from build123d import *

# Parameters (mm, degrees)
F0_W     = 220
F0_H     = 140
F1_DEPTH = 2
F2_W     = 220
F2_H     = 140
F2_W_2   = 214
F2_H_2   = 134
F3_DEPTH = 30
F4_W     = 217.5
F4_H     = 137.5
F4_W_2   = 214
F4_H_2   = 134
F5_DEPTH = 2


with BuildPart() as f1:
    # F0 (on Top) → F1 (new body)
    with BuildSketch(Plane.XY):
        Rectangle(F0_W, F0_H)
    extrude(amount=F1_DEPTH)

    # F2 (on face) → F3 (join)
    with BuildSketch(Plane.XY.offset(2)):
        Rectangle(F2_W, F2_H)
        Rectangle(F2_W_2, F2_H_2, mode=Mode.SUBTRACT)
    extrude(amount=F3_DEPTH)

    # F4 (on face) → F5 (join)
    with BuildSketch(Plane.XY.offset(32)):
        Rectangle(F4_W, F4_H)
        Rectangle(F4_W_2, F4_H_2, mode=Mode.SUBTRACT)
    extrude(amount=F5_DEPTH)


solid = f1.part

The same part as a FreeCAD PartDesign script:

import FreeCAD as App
import Part
import Sketcher

V = App.Vector

doc = App.newDocument("Part")
body = doc.addObject("PartDesign::Body", "Body")

# Sketch on XY plane
sketch1 = body.newObject("Sketcher::SketchObject", "Sketch")
sketch1.AttachmentSupport = (doc.getObject("XY_Plane"), [""])
sketch1.MapMode = "FlatFace"
sketch1.addGeometry(Part.LineSegment(V(-110, 70, 0), V(-110, -70, 0)), False)
sketch1.addGeometry(Part.LineSegment(V(-110, -70, 0), V(110, -70, 0)), False)
sketch1.addGeometry(Part.LineSegment(V(110, -70, 0), V(110, 70, 0)), False)
sketch1.addGeometry(Part.LineSegment(V(110, 70, 0), V(-110, 70, 0)), False)
sketch1.addConstraint(Sketcher.Constraint("Coincident", 0, 2, 1, 1))
sketch1.addConstraint(Sketcher.Constraint("Coincident", 1, 2, 2, 1))
sketch1.addConstraint(Sketcher.Constraint("Coincident", 2, 2, 3, 1))
sketch1.addConstraint(Sketcher.Constraint("Coincident", 3, 2, 0, 1))
sketch1.addConstraint(Sketcher.Constraint("Vertical", 0))
sketch1.addConstraint(Sketcher.Constraint("Horizontal", 1))
sketch1.addConstraint(Sketcher.Constraint("Vertical", 2))
sketch1.addConstraint(Sketcher.Constraint("Horizontal", 3))
sketch1.addConstraint(Sketcher.Constraint("Symmetric", 0, 2, 2, 2, -1, 1))
sketch1.addConstraint(Sketcher.Constraint("DistanceX", 1, 1, 1, 2, 220.0))
sketch1.addConstraint(Sketcher.Constraint("DistanceY", 0, 2, 0, 1, 140.0))
pad1 = body.newObject("PartDesign::Pad", "Pad")
pad1.Profile = sketch1
pad1.Length = 2

# Sketch on XY plane
sketch2 = body.newObject("Sketcher::SketchObject", "Sketch001")
sketch2.AttachmentSupport = (doc.getObject("XY_Plane"), [""])
sketch2.MapMode = "FlatFace"
sketch2.AttachmentOffset = App.Placement(V(0, 0, 2), App.Rotation())
sketch2.addGeometry(Part.LineSegment(V(-110, 70, 0), V(-110, -70, 0)), False)
sketch2.addGeometry(Part.LineSegment(V(-110, -70, 0), V(110, -70, 0)), False)
sketch2.addGeometry(Part.LineSegment(V(110, -70, 0), V(110, 70, 0)), False)
sketch2.addGeometry(Part.LineSegment(V(110, 70, 0), V(-110, 70, 0)), False)
sketch2.addGeometry(Part.LineSegment(V(107, -67, 0), V(-107, -67, 0)), False)
sketch2.addGeometry(Part.LineSegment(V(-107, -67, 0), V(-107, 67, 0)), False)
sketch2.addGeometry(Part.LineSegment(V(-107, 67, 0), V(107, 67, 0)), False)
sketch2.addGeometry(Part.LineSegment(V(107, 67, 0), V(107, -67, 0)), False)
sketch2.addConstraint(Sketcher.Constraint("Coincident", 0, 2, 1, 1))
sketch2.addConstraint(Sketcher.Constraint("Coincident", 1, 2, 2, 1))
sketch2.addConstraint(Sketcher.Constraint("Coincident", 2, 2, 3, 1))
sketch2.addConstraint(Sketcher.Constraint("Coincident", 3, 2, 0, 1))
sketch2.addConstraint(Sketcher.Constraint("Coincident", 4, 2, 5, 1))
sketch2.addConstraint(Sketcher.Constraint("Coincident", 5, 2, 6, 1))
sketch2.addConstraint(Sketcher.Constraint("Coincident", 6, 2, 7, 1))
sketch2.addConstraint(Sketcher.Constraint("Coincident", 7, 2, 4, 1))
sketch2.addConstraint(Sketcher.Constraint("Vertical", 0))
sketch2.addConstraint(Sketcher.Constraint("Horizontal", 1))
sketch2.addConstraint(Sketcher.Constraint("Vertical", 2))
sketch2.addConstraint(Sketcher.Constraint("Horizontal", 3))
sketch2.addConstraint(Sketcher.Constraint("Horizontal", 4))
sketch2.addConstraint(Sketcher.Constraint("Vertical", 5))
sketch2.addConstraint(Sketcher.Constraint("Horizontal", 6))
sketch2.addConstraint(Sketcher.Constraint("Vertical", 7))
sketch2.addConstraint(Sketcher.Constraint("Symmetric", 0, 2, 2, 2, -1, 1))
sketch2.addConstraint(Sketcher.Constraint("Symmetric", 4, 2, 6, 2, -1, 1))
sketch2.addConstraint(Sketcher.Constraint("DistanceX", 1, 1, 1, 2, 220.0))
sketch2.addConstraint(Sketcher.Constraint("DistanceX", 4, 2, 4, 1, 214.0))
sketch2.addConstraint(Sketcher.Constraint("DistanceY", 0, 2, 0, 1, 140.0))
sketch2.addConstraint(Sketcher.Constraint("DistanceY", 5, 1, 5, 2, 134.0))
pad2 = body.newObject("PartDesign::Pad", "Pad001")
pad2.Profile = sketch2
pad2.Length = 30

# Sketch on XY plane
sketch3 = body.newObject("Sketcher::SketchObject", "Sketch002")
sketch3.AttachmentSupport = (doc.getObject("XY_Plane"), [""])
sketch3.MapMode = "FlatFace"
sketch3.AttachmentOffset = App.Placement(V(0, 0, 32), App.Rotation())
sketch3.addGeometry(Part.LineSegment(V(-108.75, 68.75, 0), V(-108.75, -68.75, 0)), False)
sketch3.addGeometry(Part.LineSegment(V(-108.75, -68.75, 0), V(108.75, -68.75, 0)), False)
sketch3.addGeometry(Part.LineSegment(V(108.75, -68.75, 0), V(108.75, 68.75, 0)), False)
sketch3.addGeometry(Part.LineSegment(V(108.75, 68.75, 0), V(-108.75, 68.75, 0)), False)
sketch3.addGeometry(Part.LineSegment(V(107, -67, 0), V(-107, -67, 0)), False)
sketch3.addGeometry(Part.LineSegment(V(-107, -67, 0), V(-107, 67, 0)), False)
sketch3.addGeometry(Part.LineSegment(V(-107, 67, 0), V(107, 67, 0)), False)
sketch3.addGeometry(Part.LineSegment(V(107, 67, 0), V(107, -67, 0)), False)
sketch3.addConstraint(Sketcher.Constraint("Coincident", 0, 2, 1, 1))
sketch3.addConstraint(Sketcher.Constraint("Coincident", 1, 2, 2, 1))
sketch3.addConstraint(Sketcher.Constraint("Coincident", 2, 2, 3, 1))
sketch3.addConstraint(Sketcher.Constraint("Coincident", 3, 2, 0, 1))
sketch3.addConstraint(Sketcher.Constraint("Coincident", 4, 2, 5, 1))
sketch3.addConstraint(Sketcher.Constraint("Coincident", 5, 2, 6, 1))
sketch3.addConstraint(Sketcher.Constraint("Coincident", 6, 2, 7, 1))
sketch3.addConstraint(Sketcher.Constraint("Coincident", 7, 2, 4, 1))
sketch3.addConstraint(Sketcher.Constraint("Vertical", 0))
sketch3.addConstraint(Sketcher.Constraint("Horizontal", 1))
sketch3.addConstraint(Sketcher.Constraint("Vertical", 2))
sketch3.addConstraint(Sketcher.Constraint("Horizontal", 3))
sketch3.addConstraint(Sketcher.Constraint("Horizontal", 4))
sketch3.addConstraint(Sketcher.Constraint("Vertical", 5))
sketch3.addConstraint(Sketcher.Constraint("Horizontal", 6))
sketch3.addConstraint(Sketcher.Constraint("Vertical", 7))
sketch3.addConstraint(Sketcher.Constraint("Symmetric", 0, 2, 2, 2, -1, 1))
sketch3.addConstraint(Sketcher.Constraint("Symmetric", 4, 2, 6, 2, -1, 1))
sketch3.addConstraint(Sketcher.Constraint("DistanceX", 4, 2, 4, 1, 214.0))
sketch3.addConstraint(Sketcher.Constraint("DistanceY", 5, 1, 5, 2, 134.0))
sketch3.addConstraint(Sketcher.Constraint("DistanceX", 1, 1, 1, 2, 217.5))
sketch3.addConstraint(Sketcher.Constraint("DistanceY", 0, 2, 0, 1, 137.5))
pad3 = body.newObject("PartDesign::Pad", "Pad002")
pad3.Profile = sketch3
pad3.Length = 2

doc.recompute()
